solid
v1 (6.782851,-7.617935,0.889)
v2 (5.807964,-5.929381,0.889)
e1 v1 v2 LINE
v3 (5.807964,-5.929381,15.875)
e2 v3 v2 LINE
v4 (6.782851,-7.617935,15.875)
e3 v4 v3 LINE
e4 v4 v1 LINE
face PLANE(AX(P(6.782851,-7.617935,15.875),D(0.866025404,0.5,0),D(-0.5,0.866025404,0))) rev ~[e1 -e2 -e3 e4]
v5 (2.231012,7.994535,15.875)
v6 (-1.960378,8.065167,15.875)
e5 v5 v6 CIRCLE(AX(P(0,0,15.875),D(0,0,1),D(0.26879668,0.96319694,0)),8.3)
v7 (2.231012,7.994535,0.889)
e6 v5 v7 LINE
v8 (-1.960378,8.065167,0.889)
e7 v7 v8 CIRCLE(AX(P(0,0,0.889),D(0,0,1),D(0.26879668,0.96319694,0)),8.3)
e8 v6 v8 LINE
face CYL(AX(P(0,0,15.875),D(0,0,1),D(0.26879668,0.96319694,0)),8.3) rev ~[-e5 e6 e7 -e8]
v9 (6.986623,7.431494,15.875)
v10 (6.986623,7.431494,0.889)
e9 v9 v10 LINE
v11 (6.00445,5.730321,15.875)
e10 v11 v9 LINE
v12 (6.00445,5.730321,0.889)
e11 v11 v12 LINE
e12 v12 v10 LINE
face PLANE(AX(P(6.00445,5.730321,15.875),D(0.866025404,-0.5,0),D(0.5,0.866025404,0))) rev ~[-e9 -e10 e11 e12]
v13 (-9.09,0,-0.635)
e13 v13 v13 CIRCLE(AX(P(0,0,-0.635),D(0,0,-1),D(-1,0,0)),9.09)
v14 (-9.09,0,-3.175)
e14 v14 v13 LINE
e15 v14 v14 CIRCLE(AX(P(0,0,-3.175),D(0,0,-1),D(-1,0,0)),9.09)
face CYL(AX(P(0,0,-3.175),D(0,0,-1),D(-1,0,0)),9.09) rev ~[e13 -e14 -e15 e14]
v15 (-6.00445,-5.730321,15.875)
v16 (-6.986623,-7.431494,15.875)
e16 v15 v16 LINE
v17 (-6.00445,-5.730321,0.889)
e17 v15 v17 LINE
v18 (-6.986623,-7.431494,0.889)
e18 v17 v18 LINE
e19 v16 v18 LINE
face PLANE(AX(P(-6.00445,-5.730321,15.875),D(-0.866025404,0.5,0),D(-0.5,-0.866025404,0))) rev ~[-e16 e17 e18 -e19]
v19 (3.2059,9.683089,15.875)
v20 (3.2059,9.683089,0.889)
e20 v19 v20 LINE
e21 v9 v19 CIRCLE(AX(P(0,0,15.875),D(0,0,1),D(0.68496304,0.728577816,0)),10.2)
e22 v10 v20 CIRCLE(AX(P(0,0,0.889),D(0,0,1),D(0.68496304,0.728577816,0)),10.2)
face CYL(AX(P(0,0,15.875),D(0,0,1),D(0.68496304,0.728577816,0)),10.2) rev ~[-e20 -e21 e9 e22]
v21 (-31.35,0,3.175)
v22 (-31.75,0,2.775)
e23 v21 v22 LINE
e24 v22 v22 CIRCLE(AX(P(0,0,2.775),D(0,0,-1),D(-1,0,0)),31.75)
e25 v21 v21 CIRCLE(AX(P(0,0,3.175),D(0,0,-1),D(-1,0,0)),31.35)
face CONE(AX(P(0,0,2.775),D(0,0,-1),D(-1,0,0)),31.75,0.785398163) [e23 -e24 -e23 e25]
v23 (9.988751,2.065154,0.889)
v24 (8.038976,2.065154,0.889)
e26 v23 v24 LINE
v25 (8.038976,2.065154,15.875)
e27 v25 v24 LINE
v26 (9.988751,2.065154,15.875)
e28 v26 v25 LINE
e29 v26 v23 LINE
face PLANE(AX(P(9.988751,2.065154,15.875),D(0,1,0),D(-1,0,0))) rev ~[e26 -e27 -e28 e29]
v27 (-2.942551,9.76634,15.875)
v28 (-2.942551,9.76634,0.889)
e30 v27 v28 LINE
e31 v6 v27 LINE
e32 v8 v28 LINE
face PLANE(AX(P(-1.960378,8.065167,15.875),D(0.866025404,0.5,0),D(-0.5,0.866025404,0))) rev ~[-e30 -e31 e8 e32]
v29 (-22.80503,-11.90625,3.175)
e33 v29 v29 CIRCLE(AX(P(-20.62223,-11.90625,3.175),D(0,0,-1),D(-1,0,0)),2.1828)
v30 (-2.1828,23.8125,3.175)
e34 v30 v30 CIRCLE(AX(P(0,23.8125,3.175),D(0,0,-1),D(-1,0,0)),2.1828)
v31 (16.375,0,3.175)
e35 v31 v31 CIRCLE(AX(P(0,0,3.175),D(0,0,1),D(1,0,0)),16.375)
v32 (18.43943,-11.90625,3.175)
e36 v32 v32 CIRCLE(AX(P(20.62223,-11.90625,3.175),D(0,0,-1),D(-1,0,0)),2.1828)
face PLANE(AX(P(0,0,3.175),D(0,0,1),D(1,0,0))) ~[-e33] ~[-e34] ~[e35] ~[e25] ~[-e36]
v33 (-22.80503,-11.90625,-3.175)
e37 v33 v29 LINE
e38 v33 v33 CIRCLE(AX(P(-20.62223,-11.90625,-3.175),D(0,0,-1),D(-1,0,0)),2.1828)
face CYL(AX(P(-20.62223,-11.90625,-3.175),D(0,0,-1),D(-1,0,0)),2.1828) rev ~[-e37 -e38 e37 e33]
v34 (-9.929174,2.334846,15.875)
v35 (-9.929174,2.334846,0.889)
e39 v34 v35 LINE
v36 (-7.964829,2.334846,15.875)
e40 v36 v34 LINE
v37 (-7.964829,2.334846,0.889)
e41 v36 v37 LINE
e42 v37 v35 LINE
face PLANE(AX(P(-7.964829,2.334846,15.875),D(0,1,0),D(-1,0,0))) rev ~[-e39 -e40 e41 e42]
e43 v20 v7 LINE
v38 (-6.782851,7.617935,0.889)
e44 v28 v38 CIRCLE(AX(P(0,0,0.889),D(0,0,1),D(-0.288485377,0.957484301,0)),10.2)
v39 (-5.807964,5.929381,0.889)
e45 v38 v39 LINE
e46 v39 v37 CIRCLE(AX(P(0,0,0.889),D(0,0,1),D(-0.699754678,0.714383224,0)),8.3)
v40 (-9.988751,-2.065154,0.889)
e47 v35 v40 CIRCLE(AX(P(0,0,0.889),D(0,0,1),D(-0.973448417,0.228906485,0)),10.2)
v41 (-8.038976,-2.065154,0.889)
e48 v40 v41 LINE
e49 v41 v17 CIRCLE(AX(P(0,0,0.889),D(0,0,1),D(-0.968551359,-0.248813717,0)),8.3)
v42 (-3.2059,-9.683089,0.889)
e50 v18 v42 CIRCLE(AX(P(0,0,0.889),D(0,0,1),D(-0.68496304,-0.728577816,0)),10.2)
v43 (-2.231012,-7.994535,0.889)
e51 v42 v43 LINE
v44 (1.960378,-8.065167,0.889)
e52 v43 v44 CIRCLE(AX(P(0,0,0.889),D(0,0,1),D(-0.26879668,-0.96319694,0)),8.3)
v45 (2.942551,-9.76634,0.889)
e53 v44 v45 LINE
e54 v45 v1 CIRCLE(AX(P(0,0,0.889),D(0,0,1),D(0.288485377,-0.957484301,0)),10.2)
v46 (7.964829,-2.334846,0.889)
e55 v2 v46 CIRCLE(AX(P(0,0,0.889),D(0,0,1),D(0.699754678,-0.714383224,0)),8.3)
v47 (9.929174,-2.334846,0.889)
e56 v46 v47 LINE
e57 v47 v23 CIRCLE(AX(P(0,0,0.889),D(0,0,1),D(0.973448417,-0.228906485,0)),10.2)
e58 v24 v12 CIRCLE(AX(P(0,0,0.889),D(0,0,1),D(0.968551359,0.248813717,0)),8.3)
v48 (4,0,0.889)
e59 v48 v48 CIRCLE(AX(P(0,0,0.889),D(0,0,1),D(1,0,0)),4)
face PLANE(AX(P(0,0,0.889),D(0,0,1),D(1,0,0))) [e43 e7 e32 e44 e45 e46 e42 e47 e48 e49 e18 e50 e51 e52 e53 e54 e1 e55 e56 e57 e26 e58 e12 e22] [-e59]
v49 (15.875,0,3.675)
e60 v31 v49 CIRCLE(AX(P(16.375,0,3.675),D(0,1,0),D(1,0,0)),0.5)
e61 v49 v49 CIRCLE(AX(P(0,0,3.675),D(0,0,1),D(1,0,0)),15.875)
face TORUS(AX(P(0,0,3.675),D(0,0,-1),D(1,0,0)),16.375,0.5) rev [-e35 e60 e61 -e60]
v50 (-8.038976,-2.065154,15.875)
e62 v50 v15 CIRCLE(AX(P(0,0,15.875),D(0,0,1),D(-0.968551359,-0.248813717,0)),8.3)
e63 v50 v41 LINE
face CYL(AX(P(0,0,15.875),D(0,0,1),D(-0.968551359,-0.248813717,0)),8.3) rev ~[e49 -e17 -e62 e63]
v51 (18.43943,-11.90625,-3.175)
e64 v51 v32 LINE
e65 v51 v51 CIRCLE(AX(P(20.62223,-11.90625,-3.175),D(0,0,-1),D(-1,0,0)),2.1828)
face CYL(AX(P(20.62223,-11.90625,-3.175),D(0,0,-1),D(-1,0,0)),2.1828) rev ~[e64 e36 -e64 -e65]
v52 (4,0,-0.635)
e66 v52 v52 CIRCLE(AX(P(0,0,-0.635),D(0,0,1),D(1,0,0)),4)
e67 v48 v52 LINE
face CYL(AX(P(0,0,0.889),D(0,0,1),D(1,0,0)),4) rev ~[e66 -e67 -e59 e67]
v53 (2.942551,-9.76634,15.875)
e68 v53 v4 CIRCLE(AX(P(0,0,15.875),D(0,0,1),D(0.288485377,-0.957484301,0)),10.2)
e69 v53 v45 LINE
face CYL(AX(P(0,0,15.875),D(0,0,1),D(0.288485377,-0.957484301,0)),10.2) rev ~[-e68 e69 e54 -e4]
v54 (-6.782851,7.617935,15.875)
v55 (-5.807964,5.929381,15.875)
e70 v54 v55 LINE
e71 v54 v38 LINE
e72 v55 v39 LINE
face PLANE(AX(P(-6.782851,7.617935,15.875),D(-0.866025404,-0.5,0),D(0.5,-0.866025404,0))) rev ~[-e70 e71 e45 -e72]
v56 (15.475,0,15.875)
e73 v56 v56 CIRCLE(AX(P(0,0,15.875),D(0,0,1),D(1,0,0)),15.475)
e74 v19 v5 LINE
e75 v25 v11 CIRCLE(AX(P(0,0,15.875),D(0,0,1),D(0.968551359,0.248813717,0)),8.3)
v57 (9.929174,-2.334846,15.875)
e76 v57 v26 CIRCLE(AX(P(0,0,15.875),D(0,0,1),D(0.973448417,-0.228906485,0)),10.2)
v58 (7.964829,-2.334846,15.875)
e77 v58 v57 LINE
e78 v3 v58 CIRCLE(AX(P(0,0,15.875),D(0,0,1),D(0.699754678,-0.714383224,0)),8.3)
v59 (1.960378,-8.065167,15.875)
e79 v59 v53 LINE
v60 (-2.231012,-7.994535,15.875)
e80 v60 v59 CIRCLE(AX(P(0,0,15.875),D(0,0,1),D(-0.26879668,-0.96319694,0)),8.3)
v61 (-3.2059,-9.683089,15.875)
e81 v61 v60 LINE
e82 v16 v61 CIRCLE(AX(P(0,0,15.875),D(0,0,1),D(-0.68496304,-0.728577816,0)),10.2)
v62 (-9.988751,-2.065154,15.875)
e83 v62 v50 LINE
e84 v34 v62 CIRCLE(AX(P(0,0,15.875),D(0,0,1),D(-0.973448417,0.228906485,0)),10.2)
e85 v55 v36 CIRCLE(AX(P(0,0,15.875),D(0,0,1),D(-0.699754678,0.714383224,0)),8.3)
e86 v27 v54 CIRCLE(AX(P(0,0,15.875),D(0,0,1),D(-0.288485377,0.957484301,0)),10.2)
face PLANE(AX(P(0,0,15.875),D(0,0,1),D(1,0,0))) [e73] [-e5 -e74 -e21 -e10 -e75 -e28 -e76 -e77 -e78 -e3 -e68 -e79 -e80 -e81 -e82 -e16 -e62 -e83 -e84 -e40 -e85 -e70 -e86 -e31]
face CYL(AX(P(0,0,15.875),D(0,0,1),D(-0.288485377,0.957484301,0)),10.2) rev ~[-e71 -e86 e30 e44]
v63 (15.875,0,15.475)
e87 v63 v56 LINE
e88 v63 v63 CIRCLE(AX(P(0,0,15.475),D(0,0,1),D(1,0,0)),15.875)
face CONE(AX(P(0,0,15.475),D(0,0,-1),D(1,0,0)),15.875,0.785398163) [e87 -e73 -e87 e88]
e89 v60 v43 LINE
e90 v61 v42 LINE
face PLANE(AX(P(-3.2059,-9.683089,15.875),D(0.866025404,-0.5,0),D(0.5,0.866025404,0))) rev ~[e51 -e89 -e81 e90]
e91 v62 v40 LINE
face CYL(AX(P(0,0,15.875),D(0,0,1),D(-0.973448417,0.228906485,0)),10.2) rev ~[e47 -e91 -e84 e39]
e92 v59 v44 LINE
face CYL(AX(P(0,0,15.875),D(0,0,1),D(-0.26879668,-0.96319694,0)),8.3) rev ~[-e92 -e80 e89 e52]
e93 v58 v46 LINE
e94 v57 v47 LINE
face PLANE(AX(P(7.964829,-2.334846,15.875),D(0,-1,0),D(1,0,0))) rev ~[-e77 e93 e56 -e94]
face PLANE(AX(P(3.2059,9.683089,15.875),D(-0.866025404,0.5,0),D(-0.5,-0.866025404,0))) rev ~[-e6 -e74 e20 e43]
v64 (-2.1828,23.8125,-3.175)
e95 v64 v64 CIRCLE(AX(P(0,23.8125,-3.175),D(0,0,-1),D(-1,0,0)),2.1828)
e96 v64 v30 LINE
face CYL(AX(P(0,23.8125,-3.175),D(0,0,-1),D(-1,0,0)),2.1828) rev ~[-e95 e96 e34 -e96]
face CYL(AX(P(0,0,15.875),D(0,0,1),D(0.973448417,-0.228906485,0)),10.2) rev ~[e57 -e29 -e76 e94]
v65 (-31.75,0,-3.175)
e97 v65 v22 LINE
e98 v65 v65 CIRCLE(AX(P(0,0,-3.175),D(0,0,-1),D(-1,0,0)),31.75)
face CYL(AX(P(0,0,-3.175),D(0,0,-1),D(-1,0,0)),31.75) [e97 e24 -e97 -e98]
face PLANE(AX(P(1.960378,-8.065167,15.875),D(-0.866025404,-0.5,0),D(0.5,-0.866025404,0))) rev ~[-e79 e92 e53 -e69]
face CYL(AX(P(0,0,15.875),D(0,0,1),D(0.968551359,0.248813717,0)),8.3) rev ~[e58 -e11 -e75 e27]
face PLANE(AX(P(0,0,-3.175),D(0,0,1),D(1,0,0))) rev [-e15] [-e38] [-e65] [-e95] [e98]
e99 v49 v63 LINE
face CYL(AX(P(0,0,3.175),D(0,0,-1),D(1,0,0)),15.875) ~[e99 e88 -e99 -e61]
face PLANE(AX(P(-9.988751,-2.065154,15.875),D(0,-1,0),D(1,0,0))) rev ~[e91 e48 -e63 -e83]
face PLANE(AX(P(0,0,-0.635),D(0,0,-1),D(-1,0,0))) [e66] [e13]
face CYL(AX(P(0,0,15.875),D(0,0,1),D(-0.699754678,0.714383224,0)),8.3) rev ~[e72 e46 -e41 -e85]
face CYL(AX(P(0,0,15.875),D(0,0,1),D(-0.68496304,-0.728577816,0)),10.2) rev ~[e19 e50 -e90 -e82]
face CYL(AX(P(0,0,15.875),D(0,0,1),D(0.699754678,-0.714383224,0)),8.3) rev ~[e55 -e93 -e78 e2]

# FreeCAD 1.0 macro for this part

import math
import FreeCAD as App
import Part
import Sketcher
Q = App.Units.Quantity


def edges_at(feature, points):
    """Names of the edges that pass closest to the given points."""
    edges = feature.Shape.Edges
    near = lambda p: min(range(len(edges)), key=lambda i: edges[i].distToShape(Part.Vertex(*p))[0])
    return sorted({f"Edge{near(p) + 1}" for p in points})


def add_polygon(sketch, points):
    """Adds a closed chain of lines whose ends are joined by coincident constraints."""
    first, n = sketch.GeometryCount, len(points)
    for a, b in zip(points, points[1:] + points[:1]):
        sketch.addGeometry(Part.LineSegment(App.Vector(*a, 0), App.Vector(*b, 0)), False)
    for i in range(n):
        sketch.addConstraint(Sketcher.Constraint("Coincident", first + i, 2, first + (i + 1) % n, 1))

doc = App.newDocument("Part")
params = doc.addObject("Spreadsheet::Sheet", "Params")
for row, (alias, value) in enumerate([
    ("sketch1_width", "38.1 mm"),
    ("sketch1_height", "6.35 mm"),
    ("revolution_angle", "360 deg"),
    ("sketch2_diameter", "31.75 mm"),
    ("pad1_length", "12.7 mm"),
    ("sketch3_radius", "10 mm"),
    ("sketch3_radius2", "8.1 mm"),
    ("pocket1_length", "14.986 mm"),
    ("sketch4_diameter", "8 mm"),
    ("pocket2_length", "10 mm"),
    ("fillet_radius", "0.5 mm"),
    ("sketch5_diameter", "76.2 mm"),
    ("sketch5_diameter2", "63.5 mm"),
    ("pocket3_length", "10 mm"),
    ("chamfer_size", "0.4 mm"),
    ("sketch6_diameter", "18.18 mm"),
    ("pocket4_length", "2.54 mm"),
    ("sketch7_radius", "10 mm"),
    ("sketch7_radius2", "8.3 mm"),
    ("sketch7_radius3", "10.2 mm"),
    ("sketch7_radius4", "8.1 mm"),
    ("pocket5_length", "14.986 mm"),
], start=1):
    params.set(f"A{row}", alias)
    params.set(f"B{row}", "=" + value)
    params.setAlias(f"B{row}", alias)

body = doc.addObject("PartDesign::Body", "Body")

sketch1 = doc.addObject("Sketcher::SketchObject", "Sketch")
body.addObject(sketch1)
sketch1.AttachmentSupport = (doc.XZ_Plane, [""])
sketch1.MapMode = "FlatFace"
add_polygon(sketch1, [(0, -3), (0, 3), (38, 3), (38, -3)])
sketch1.addConstraint([
    Sketcher.Constraint("Vertical", 0),
    Sketcher.Constraint("Horizontal", 1),
    Sketcher.Constraint("Vertical", 2),
    Sketcher.Constraint("Horizontal", 3),
    Sketcher.Constraint("Symmetric", 0, 2, 3, 2, -1, 1),
    Sketcher.Constraint("DistanceX", 1, 1, 1, 2, Q("38.1 mm")),
    Sketcher.Constraint("DistanceY", 0, 1, 0, 2, Q("6.35 mm")),
])
sketch1.setExpression("Constraints[9]", "Params.sketch1_width")
sketch1.setExpression("Constraints[10]", "Params.sketch1_height")
revolution = doc.addObject("PartDesign::Revolution", "Revolution")
body.addObject(revolution)
revolution.Profile = sketch1
revolution.ReferenceAxis = (sketch1, ["V_Axis"])
revolution.setExpression("Angle", "Params.revolution_angle")

sketch2 = doc.addObject("Sketcher::SketchObject", "Sketch001")
body.addObject(sketch2)
sketch2.AttachmentSupport = (doc.XY_Plane, [""])
sketch2.MapMode = "FlatFace"
sketch2.AttachmentOffset = App.Placement(App.Vector(0, 0, 3.175), App.Rotation())
sketch2.addGeometry(Part.Circle(App.Vector(0, 0, 0), App.Vector(0, 0, 1), 16), False)
sketch2.addConstraint([
    Sketcher.Constraint("Coincident", 0, 3, -1, 1),
    Sketcher.Constraint("Diameter", 0, Q("31.75 mm")),
])
sketch2.setExpression("Constraints[1]", "Params.sketch2_diameter")
pad1 = doc.addObject("PartDesign::Pad", "Pad")
body.addObject(pad1)
pad1.Profile = sketch2
pad1.setExpression("Length", "Params.pad1_length")

sketch3 = doc.addObject("Sketcher::SketchObject", "Sketch002")
body.addObject(sketch3)
sketch3.AttachmentSupport = (doc.XY_Plane, [""])
sketch3.MapMode = "FlatFace"
sketch3.AttachmentOffset = App.Placement(App.Vector(0, 0, 15.875), App.Rotation())
sketch3.addGeometry([
    Part.LineSegment(App.Vector(-7.8, 2.1, 0), App.Vector(-9.8, 2.1, 0)),
    Part.ArcOfCircle(Part.Circle(App.Vector(0, 0, 0), App.Vector(0, 0, 1), 10), math.radians(168), math.radians(191)),
    Part.LineSegment(App.Vector(-9.8, -1.9, 0), App.Vector(-7.9, -1.9, 0)),
    Part.ArcOfCircle(Part.Circle(App.Vector(0, 0, 0), App.Vector(0, 0, 1), 8.1), math.radians(-167), math.radians(-135)),
    Part.LineSegment(App.Vector(-5.8, -5.7, 0), App.Vector(-6.7, -7.4, 0)),
    Part.ArcOfCircle(Part.Circle(App.Vector(0, 0, 0), App.Vector(0, 0, 1), 10), math.radians(-132), math.radians(-109)),
    Part.LineSegment(App.Vector(-3.3, -9.4, 0), App.Vector(-2.3, -7.8, 0)),
    Part.ArcOfCircle(Part.Circle(App.Vector(0, 0, 0), App.Vector(0, 0, 1), 8.1), math.radians(-107), math.radians(-75)),
    Part.LineSegment(App.Vector(2.1, -7.8, 0), App.Vector(3, -9.5, 0)),
    Part.ArcOfCircle(Part.Circle(App.Vector(0, 0, 0), App.Vector(0, 0, 1), 10), math.radians(-72), math.radians(-49)),
    Part.LineSegment(App.Vector(6.5, -7.6, 0), App.Vector(5.6, -5.9, 0)),
    Part.ArcOfCircle(Part.Circle(App.Vector(0, 0, 0), App.Vector(0, 0, 1), 8.1), math.radians(-47), math.radians(-15)),
    Part.LineSegment(App.Vector(7.8, -2.1, 0), App.Vector(9.8, -2.1, 0)),
    Part.ArcOfCircle(Part.Circle(App.Vector(0, 0, 0), App.Vector(0, 0, 1), 10), math.radians(-12), math.radians(11)),
    Part.LineSegment(App.Vector(9.8, 1.9, 0), App.Vector(7.9, 1.9, 0)),
    Part.ArcOfCircle(Part.Circle(App.Vector(0, 0, 0), App.Vector(0, 0, 1), 8.1), math.radians(13), math.radians(45)),
    Part.LineSegment(App.Vector(5.8, 5.7, 0), App.Vector(6.7, 7.4, 0)),
    Part.ArcOfCircle(Part.Circle(App.Vector(0, 0, 0), App.Vector(0, 0, 1), 10), math.radians(48), math.radians(71)),
    Part.LineSegment(App.Vector(3.3, 9.4, 0), App.Vector(2.3, 7.8, 0)),
    Part.ArcOfCircle(Part.Circle(App.Vector(0, 0, 0), App.Vector(0, 0, 1), 8.1), math.radians(73), math.radians(105)),
    Part.LineSegment(App.Vector(-2.1, 7.8, 0), App.Vector(-3, 9.5, 0)),
    Part.ArcOfCircle(Part.Circle(App.Vector(0, 0, 0), App.Vector(0, 0, 1), 10), math.radians(108), math.radians(131)),
    Part.LineSegment(App.Vector(-6.5, 7.6, 0), App.Vector(-5.6, 5.9, 0)),
    Part.ArcOfCircle(Part.Circle(App.Vector(0, 0, 0), App.Vector(0, 0, 1), 8.1), math.radians(133), math.radians(165)),
], False)
sketch3.addConstraint([
    Sketcher.Constraint("Coincident", 0, 2, 1, 1),
    Sketcher.Constraint("Coincident", 1, 2, 2, 1),
    Sketcher.Constraint("Coincident", 2, 2, 3, 1),
    Sketcher.Constraint("Coincident", 3, 2, 4, 1),
    Sketcher.Constraint("Coincident", 4, 2, 5, 1),
    Sketcher.Constraint("Coincident", 5, 2, 6, 1),
    Sketcher.Constraint("Coincident", 6, 2, 7, 1),
    Sketcher.Constraint("Coincident", 7, 2, 8, 1),
    Sketcher.Constraint("Coincident", 8, 2, 9, 1),
    Sketcher.Constraint("Coincident", 9, 2, 10, 1),
    Sketcher.Constraint("Coincident", 10, 2, 11, 1),
    Sketcher.Constraint("Coincident", 11, 2, 12, 1),
    Sketcher.Constraint("Coincident", 12, 2, 13, 1),
    Sketcher.Constraint("Coincident", 13, 2, 14, 1),
    Sketcher.Constraint("Coincident", 14, 2, 15, 1),
    Sketcher.Constraint("Coincident", 15, 2, 16, 1),
    Sketcher.Constraint("Coincident", 16, 2, 17, 1),
    Sketcher.Constraint("Coincident", 17, 2, 18, 1),
    Sketcher.Constraint("Coincident", 18, 2, 19, 1),
    Sketcher.Constraint("Coincident", 19, 2, 20, 1),
    Sketcher.Constraint("Coincident", 20, 2, 21, 1),
    Sketcher.Constraint("Coincident", 21, 2, 22, 1),
    Sketcher.Constraint("Coincident", 22, 2, 23, 1),
    Sketcher.Constraint("Coincident", 23, 2, 0, 1),
    Sketcher.Constraint("Horizontal", 0),
    Sketcher.Constraint("Horizontal", 2),
    Sketcher.Constraint("Horizontal", 12),
    Sketcher.Constraint("Horizontal", 14),
    Sketcher.Constraint("Coincident", 1, 3, -1, 1),
    Sketcher.Constraint("Coincident", 3, 3, -1, 1),
    Sketcher.Constraint("Coincident", 5, 3, -1, 1),
    Sketcher.Constraint("Coincident", 7, 3, -1, 1),
    Sketcher.Constraint("Coincident", 9, 3, -1, 1),
    Sketcher.Constraint("Coincident", 11, 3, -1, 1),
    Sketcher.Constraint("Coincident", 13, 3, -1, 1),
    Sketcher.Constraint("Coincident", 15, 3, -1, 1),
    Sketcher.Constraint("Coincident", 17, 3, -1, 1),
    Sketcher.Constraint("Coincident", 19, 3, -1, 1),
    Sketcher.Constraint("Coincident", 21, 3, -1, 1),
    Sketcher.Constraint("Coincident", 23, 3, -1, 1),
    Sketcher.Constraint("Equal", 1, 5),
    Sketcher.Constraint("Equal", 3, 7),
    Sketcher.Constraint("Equal", 5, 9),
    Sketcher.Constraint("Equal", 7, 11),
    Sketcher.Constraint("Equal", 9, 13),
    Sketcher.Constraint("Equal", 11, 15),
    Sketcher.Constraint("Equal", 13, 17),
    Sketcher.Constraint("Equal", 15, 19),
    Sketcher.Constraint("Equal", 17, 21),
    Sketcher.Constraint("Equal", 19, 23),
    Sketcher.Constraint("Parallel", 4, 6),
    Sketcher.Constraint("Parallel", 8, 10),
    Sketcher.Constraint("Parallel", 6, 16),
    Sketcher.Constraint("Parallel", 16, 18),
    Sketcher.Constraint("Parallel", 10, 20),
    Sketcher.Constraint("Parallel", 20, 22),
    Sketcher.Constraint("Equal", 0, 12),
    Sketcher.Constraint("Equal", 2, 14),
    Sketcher.Constraint("Equal", 4, 8),
    Sketcher.Constraint("Equal", 6, 10),
    Sketcher.Constraint("Equal", 8, 16),
    Sketcher.Constraint("Equal", 10, 18),
    Sketcher.Constraint("Equal", 16, 20),
    Sketcher.Constraint("Equal", 18, 22),
    Sketcher.Constraint("Radius", 1, Q("10 mm")),
    Sketcher.Constraint("Radius", 3, Q("8.1 mm")),
    Sketcher.Constraint("Angle", 4, Q("-120 deg")),
    Sketcher.Constraint("Angle", 8, Q("-60 deg")),
    Sketcher.Constraint("DistanceY", 1, 2, 0, 2, Q("4 mm")),
    Sketcher.Constraint("DistanceX", 0, 2, 0, 1, Q("1.955859 mm")),
    Sketcher.Constraint("DistanceX", -1, 1, 8, 2, Q("3.035901 mm")),
    Sketcher.Constraint("DistanceX", 5, 2, -1, 1, Q("3.29699 mm")),
])
sketch3.setExpression("Constraints[64]", "Params.sketch3_radius")
sketch3.setExpression("Constraints[65]", "Params.sketch3_radius2")
pocket1 = doc.addObject("PartDesign::Pocket", "Pocket")
body.addObject(pocket1)
pocket1.Profile = sketch3
pocket1.setExpression("Length", "Params.pocket1_length")

sketch4 = doc.addObject("Sketcher::SketchObject", "Sketch003")
body.addObject(sketch4)
sketch4.AttachmentSupport = (doc.XY_Plane, [""])
sketch4.MapMode = "FlatFace"
sketch4.AttachmentOffset = App.Placement(App.Vector(0, 0, 0.889), App.Rotation())
sketch4.addGeometry(Part.Circle(App.Vector(0, 0, 0), App.Vector(0, 0, 1), 4), False)
sketch4.addConstraint([
    Sketcher.Constraint("Coincident", 0, 3, -1, 1),
    Sketcher.Constraint("Diameter", 0, Q("8 mm")),
])
sketch4.setExpression("Constraints[1]", "Params.sketch4_diameter")
pocket2 = doc.addObject("PartDesign::Pocket", "Pocket001")
body.addObject(pocket2)
pocket2.Profile = sketch4
pocket2.setExpression("Length", "Params.pocket2_length")
doc.recompute()

fillet = doc.addObject("PartDesign::Fillet", "Fillet")
body.addObject(fillet)
fillet.Base = (pocket2, edges_at(pocket2, [(-15.875, 0, 3.175)]))
fillet.setExpression("Radius", "Params.fillet_radius")

sketch5 = doc.addObject("Sketcher::SketchObject", "Sketch004")
body.addObject(sketch5)
sketch5.AttachmentSupport = (doc.XY_Plane, [""])
sketch5.MapMode = "FlatFace"
sketch5.AttachmentOffset = App.Placement(App.Vector(0, 0, -3.175), App.Rotation())
sketch5.addGeometry([
    Part.Circle(App.Vector(0, 0, 0), App.Vector(0, 0, 1), 38.1),
    Part.Circle(App.Vector(0, 0, 0), App.Vector(0, 0, 1), 31.8),
    Part.Circle(App.Vector(0, 23.8, 0), App.Vector(0, 0, 1), 2.2),
    Part.Circle(App.Vector(20.6, -11.9, 0), App.Vector(0, 0, 1), 2.2),
    Part.Circle(App.Vector(-20.6, -11.9, 0), App.Vector(0, 0, 1), 2.2),
], False)
sketch5.addConstraint([
    Sketcher.Constraint("Coincident", 0, 3, -1, 1),
    Sketcher.Constraint("Coincident", 1, 3, -1, 1),
    Sketcher.Constraint("Equal", 2, 3),
    Sketcher.Constraint("Equal", 3, 4),
    Sketcher.Constraint("Symmetric", 3, 3, 4, 3, -2),
    Sketcher.Constraint("PointOnObject", 2, 3, -2),
    Sketcher.Constraint("Diameter", 0, Q("76.2 mm")),
    Sketcher.Constraint("Diameter", 1, Q("63.5 mm")),
    Sketcher.Constraint("Diameter", 2, Q("4.3656 mm")),
    Sketcher.Constraint("DistanceY", -1, 1, 2, 3, Q("23.8125 mm")),
    Sketcher.Constraint("DistanceX", -1, 1, 3, 3, Q("20.62223 mm")),
    Sketcher.Constraint("DistanceY", 3, 3, -1, 1, Q("11.90625 mm")),
])
sketch5.setExpression("Constraints[6]", "Params.sketch5_diameter")
sketch5.setExpression("Constraints[7]", "Params.sketch5_diameter2")
pocket3 = doc.addObject("PartDesign::Pocket", "Pocket002")
body.addObject(pocket3)
pocket3.Profile = sketch5
pocket3.setExpression("Length", "Params.pocket3_length")
pocket3.Reversed = True
doc.recompute()

chamfer = doc.addObject("PartDesign::Chamfer", "Chamfer")
body.addObject(chamfer)
chamfer.Base = (pocket3, edges_at(pocket3, [(31.75, 0, 3.175), (-15.875, 0, 15.875)]))
chamfer.setExpression("Size", "Params.chamfer_size")

sketch6 = doc.addObject("Sketcher::SketchObject", "Sketch005")
body.addObject(sketch6)
sketch6.AttachmentSupport = (doc.XY_Plane, [""])
sketch6.MapMode = "FlatFace"
sketch6.AttachmentOffset = App.Placement(App.Vector(0, 0, -3.175), App.Rotation())
sketch6.addGeometry(Part.Circle(App.Vector(0, 0, 0), App.Vector(0, 0, 1), 9), False)
sketch6.addConstraint([
    Sketcher.Constraint("Coincident", 0, 3, -1, 1),
    Sketcher.Constraint("Diameter", 0, Q("18.18 mm")),
])
sketch6.setExpression("Constraints[1]", "Params.sketch6_diameter")
pocket4 = doc.addObject("PartDesign::Pocket", "Pocket003")
body.addObject(pocket4)
pocket4.Profile = sketch6
pocket4.setExpression("Length", "Params.pocket4_length")
pocket4.Reversed = True

sketch7 = doc.addObject("Sketcher::SketchObject", "Sketch006")
body.addObject(sketch7)
sketch7.AttachmentSupport = (doc.XY_Plane, [""])
sketch7.MapMode = "FlatFace"
sketch7.AttachmentOffset = App.Placement(App.Vector(0, 0, 15.875), App.Rotation())
sketch7.addGeometry([
    Part.LineSegment(App.Vector(-6.8, 7.6, 0), App.Vector(-5.8, 5.9, 0)),
    Part.ArcOfCircle(Part.Circle(App.Vector(0, 0, 0), App.Vector(0, 0, 1), 8.3), math.radians(134), math.radians(164)),
    Part.LineSegment(App.Vector(-8, 2.3, 0), App.Vector(-9.9, 2.3, 0)),
    Part.ArcOfCircle(Part.Circle(App.Vector(0, 0, 0), App.Vector(0, 0, 1), 10.2), math.radians(167), math.radians(192)),
    Part.LineSegment(App.Vector(-10, -2.1, 0), App.Vector(-8, -2.1, 0)),
    Part.ArcOfCircle(Part.Circle(App.Vector(0, 0, 0), App.Vector(0, 0, 1), 8.3), math.radians(-166), math.radians(-136)),
    Part.LineSegment(App.Vector(-6, -5.7, 0), App.Vector(-7, -7.4, 0)),
    Part.ArcOfCircle(Part.Circle(App.Vector(0, 0, 0), App.Vector(0, 0, 1), 10.2), math.radians(-133), math.radians(-108)),
    Part.LineSegment(App.Vector(-3.2, -9.7, 0), App.Vector(-2.2, -8, 0)),
    Part.ArcOfCircle(Part.Circle(App.Vector(0, 0, 0), App.Vector(0, 0, 1), 8.3), math.radians(-106), math.radians(-76)),
    Part.LineSegment(App.Vector(2, -8.1, 0), App.Vector(2.9, -9.8, 0)),
    Part.ArcOfCircle(Part.Circle(App.Vector(0, 0, 0), App.Vector(0, 0, 1), 10.2), math.radians(-73), math.radians(-48)),
    Part.LineSegment(App.Vector(6.8, -7.6, 0), App.Vector(5.8, -5.9, 0)),
    Part.ArcOfCircle(Part.Circle(App.Vector(0, 0, 0), App.Vector(0, 0, 1), 8.3), math.radians(-46), math.radians(-16)),
    Part.LineSegment(App.Vector(8, -2.3, 0), App.Vector(9.9, -2.3, 0)),
    Part.ArcOfCircle(Part.Circle(App.Vector(0, 0, 0), App.Vector(0, 0, 1), 10.2), math.radians(-13), math.radians(12)),
    Part.LineSegment(App.Vector(10, 2.1, 0), App.Vector(8, 2.1, 0)),
    Part.ArcOfCircle(Part.Circle(App.Vector(0, 0, 0), App.Vector(0, 0, 1), 8.3), math.radians(14), math.radians(44)),
    Part.LineSegment(App.Vector(6, 5.7, 0), App.Vector(7, 7.4, 0)),
    Part.ArcOfCircle(Part.Circle(App.Vector(0, 0, 0), App.Vector(0, 0, 1), 10.2), math.radians(47), math.radians(72)),
    Part.LineSegment(App.Vector(3.2, 9.7, 0), App.Vector(2.2, 8, 0)),
    Part.ArcOfCircle(Part.Circle(App.Vector(0, 0, 0), App.Vector(0, 0, 1), 8.3), math.radians(74), math.radians(104)),
    Part.LineSegment(App.Vector(-2, 8.1, 0), App.Vector(-2.9, 9.8, 0)),
    Part.ArcOfCircle(Part.Circle(App.Vector(0, 0, 0), App.Vector(0, 0, 1), 10.2), math.radians(107), math.radians(132)),
    Part.ArcOfCircle(Part.Circle(App.Vector(0, 0, 0), App.Vector(0, 0, 1), 10), math.radians(168), math.radians(191)),
    Part.LineSegment(App.Vector(-9.8, 2.1, 0), App.Vector(-7.8, 2.1, 0)),
    Part.ArcOfCircle(Part.Circle(App.Vector(0, 0, 0), App.Vector(0, 0, 1), 8.1), math.radians(133), math.radians(165)),
    Part.LineSegment(App.Vector(-5.6, 5.9, 0), App.Vector(-6.5, 7.6, 0)),
    Part.ArcOfCircle(Part.Circle(App.Vector(0, 0, 0), App.Vector(0, 0, 1), 10), math.radians(108), math.radians(131)),
    Part.LineSegment(App.Vector(-3, 9.5, 0), App.Vector(-2.1, 7.8, 0)),
    Part.ArcOfCircle(Part.Circle(App.Vector(0, 0, 0), App.Vector(0, 0, 1), 8.1), math.radians(73), math.radians(105)),
    Part.LineSegment(App.Vector(2.3, 7.8, 0), App.Vector(3.3, 9.4, 0)),
    Part.ArcOfCircle(Part.Circle(App.Vector(0, 0, 0), App.Vector(0, 0, 1), 10), math.radians(48), math.radians(71)),
    Part.LineSegment(App.Vector(6.7, 7.4, 0), App.Vector(5.8, 5.7, 0)),
    Part.ArcOfCircle(Part.Circle(App.Vector(0, 0, 0), App.Vector(0, 0, 1), 8.1), math.radians(13), math.radians(45)),
    Part.LineSegment(App.Vector(7.9, 1.9, 0), App.Vector(9.8, 1.9, 0)),
    Part.ArcOfCircle(Part.Circle(App.Vector(0, 0, 0), App.Vector(0, 0, 1), 10), math.radians(-12), math.radians(11)),
    Part.LineSegment(App.Vector(9.8, -2.1, 0), App.Vector(7.8, -2.1, 0)),
    Part.ArcOfCircle(Part.Circle(App.Vector(0, 0, 0), App.Vector(0, 0, 1), 8.1), math.radians(-47), math.radians(-15)),
    Part.LineSegment(App.Vector(5.6, -5.9, 0), App.Vector(6.5, -7.6, 0)),
    Part.ArcOfCircle(Part.Circle(App.Vector(0, 0, 0), App.Vector(0, 0, 1), 10), math.radians(-72), math.radians(-49)),
    Part.LineSegment(App.Vector(3, -9.5, 0), App.Vector(2.1, -7.8, 0)),
    Part.ArcOfCircle(Part.Circle(App.Vector(0, 0, 0), App.Vector(0, 0, 1), 8.1), math.radians(-107), math.radians(-75)),
    Part.LineSegment(App.Vector(-2.3, -7.8, 0), App.Vector(-3.3, -9.4, 0)),
    Part.ArcOfCircle(Part.Circle(App.Vector(0, 0, 0), App.Vector(0, 0, 1), 10), math.radians(-132), math.radians(-109)),
    Part.LineSegment(App.Vector(-6.7, -7.4, 0), App.Vector(-5.8, -5.7, 0)),
    Part.ArcOfCircle(Part.Circle(App.Vector(0, 0, 0), App.Vector(0, 0, 1), 8.1), math.radians(-167), math.radians(-135)),
    Part.LineSegment(App.Vector(-7.9, -1.9, 0), App.Vector(-9.8, -1.9, 0)),
], False)
sketch7.addConstraint([
    Sketcher.Constraint("Coincident", 0, 2, 1, 1),
    Sketcher.Constraint("Coincident", 1, 2, 2, 1),
    Sketcher.Constraint("Coincident", 2, 2, 3, 1),
    Sketcher.Constraint("Coincident", 3, 2, 4, 1),
    Sketcher.Constraint("Coincident", 4, 2, 5, 1),
    Sketcher.Constraint("Coincident", 5, 2, 6, 1),
    Sketcher.Constraint("Coincident", 6, 2, 7, 1),
    Sketcher.Constraint("Coincident", 7, 2, 8, 1),
    Sketcher.Constraint("Coincident", 8, 2, 9, 1),
    Sketcher.Constraint("Coincident", 9, 2, 10, 1),
    Sketcher.Constraint("Coincident", 10, 2, 11, 1),
    Sketcher.Constraint("Coincident", 11, 2, 12, 1),
    Sketcher.Constraint("Coincident", 12, 2, 13, 1),
    Sketcher.Constraint("Coincident", 13, 2, 14, 1),
    Sketcher.Constraint("Coincident", 14, 2, 15, 1),
    Sketcher.Constraint("Coincident", 15, 2, 16, 1),
    Sketcher.Constraint("Coincident", 16, 2, 17, 1),
    Sketcher.Constraint("Coincident", 17, 2, 18, 1),
    Sketcher.Constraint("Coincident", 18, 2, 19, 1),
    Sketcher.Constraint("Coincident", 19, 2, 20, 1),
    Sketcher.Constraint("Coincident", 20, 2, 21, 1),
    Sketcher.Constraint("Coincident", 21, 2, 22, 1),
    Sketcher.Constraint("Coincident", 22, 2, 23, 1),
    Sketcher.Constraint("Coincident", 23, 2, 0, 1),
    Sketcher.Constraint("Coincident", 24, 1, 25, 1),
    Sketcher.Constraint("Coincident", 25, 2, 26, 2),
    Sketcher.Constraint("Coincident", 26, 1, 27, 1),
    Sketcher.Constraint("Coincident", 27, 2, 28, 2),
    Sketcher.Constraint("Coincident", 28, 1, 29, 1),
    Sketcher.Constraint("Coincident", 29, 2, 30, 2),
    Sketcher.Constraint("Coincident", 30, 1, 31, 1),
    Sketcher.Constraint("Coincident", 31, 2, 32, 2),
    Sketcher.Constraint("Coincident", 32, 1, 33, 1),
    Sketcher.Constraint("Coincident", 33, 2, 34, 2),
    Sketcher.Constraint("Coincident", 34, 1, 35, 1),
    Sketcher.Constraint("Coincident", 35, 2, 36, 2),
    Sketcher.Constraint("Coincident", 36, 1, 37, 1),
    Sketcher.Constraint("Coincident", 37, 2, 38, 2),
    Sketcher.Constraint("Coincident", 38, 1, 39, 1),
    Sketcher.Constraint("Coincident", 39, 2, 40, 2),
    Sketcher.Constraint("Coincident", 40, 1, 41, 1),
    Sketcher.Constraint("Coincident", 41, 2, 42, 2),
    Sketcher.Constraint("Coincident", 42, 1, 43, 1),
    Sketcher.Constraint("Coincident", 43, 2, 44, 2),
    Sketcher.Constraint("Coincident", 44, 1, 45, 1),
    Sketcher.Constraint("Coincident", 45, 2, 46, 2),
    Sketcher.Constraint("Coincident", 46, 1, 47, 1),
    Sketcher.Constraint("Coincident", 47, 2, 24, 2),
    Sketcher.Constraint("Horizontal", 2),
    Sketcher.Constraint("Horizontal", 4),
    Sketcher.Constraint("Horizontal", 14),
    Sketcher.Constraint("Horizontal", 16),
    Sketcher.Constraint("Horizontal", 25),
    Sketcher.Constraint("Horizontal", 35),
    Sketcher.Constraint("Horizontal", 37),
    Sketcher.Constraint("Horizontal", 47),
    Sketcher.Constraint("Coincident", 1, 3, -1, 1),
    Sketcher.Constraint("Coincident", 3, 3, -1, 1),
    Sketcher.Constraint("Coincident", 5, 3, -1, 1),
    Sketcher.Constraint("Coincident", 7, 3, -1, 1),
    Sketcher.Constraint("Coincident", 9, 3, -1, 1),
    Sketcher.Constraint("Coincident", 11, 3, -1, 1),
    Sketcher.Constraint("Coincident", 13, 3, -1, 1),
    Sketcher.Constraint("Coincident", 15, 3, -1, 1),
    Sketcher.Constraint("Coincident", 17, 3, -1, 1),
    Sketcher.Constraint("Coincident", 19, 3, -1, 1),
    Sketcher.Constraint("Coincident", 21, 3, -1, 1),
    Sketcher.Constraint("Coincident", 23, 3, -1, 1),
    Sketcher.Constraint("Coincident", 24, 3, -1, 1),
    Sketcher.Constraint("Coincident", 26, 3, -1, 1),
    Sketcher.Constraint("Coincident", 28, 3, -1, 1),
    Sketcher.Constraint("Coincident", 30, 3, -1, 1),
    Sketcher.Constraint("Coincident", 32, 3, -1, 1),
    Sketcher.Constraint("Coincident", 34, 3, -1, 1),
    Sketcher.Constraint("Coincident", 36, 3, -1, 1),
    Sketcher.Constraint("Coincident", 38, 3, -1, 1),
    Sketcher.Constraint("Coincident", 40, 3, -1, 1),
    Sketcher.Constraint("Coincident", 42, 3, -1, 1),
    Sketcher.Constraint("Coincident", 44, 3, -1, 1),
    Sketcher.Constraint("Coincident", 46, 3, -1, 1),
    Sketcher.Constraint("Equal", 1, 5),
    Sketcher.Constraint("Equal", 3, 7),
    Sketcher.Constraint("Equal", 5, 9),
    Sketcher.Constraint("Equal", 7, 11),
    Sketcher.Constraint("Equal", 9, 13),
    Sketcher.Constraint("Equal", 11, 15),
    Sketcher.Constraint("Equal", 13, 17),
    Sketcher.Constraint("Equal", 15, 19),
    Sketcher.Constraint("Equal", 17, 21),
    Sketcher.Constraint("Equal", 19, 23),
    Sketcher.Constraint("Equal", 24, 28),
    Sketcher.Constraint("Equal", 26, 30),
    Sketcher.Constraint("Equal", 28, 32),
    Sketcher.Constraint("Equal", 30, 34),
    Sketcher.Constraint("Equal", 32, 36),
    Sketcher.Constraint("Equal", 34, 38),
    Sketcher.Constraint("Equal", 36, 40),
    Sketcher.Constraint("Equal", 38, 42),
    Sketcher.Constraint("Equal", 40, 44),
    Sketcher.Constraint("Equal", 42, 46),
    Sketcher.Constraint("Parallel", 6, 8),
    Sketcher.Constraint("Parallel", 0, 10),
    Sketcher.Constraint("Parallel", 10, 12),
    Sketcher.Constraint("Parallel", 8, 18),
    Sketcher.Constraint("Parallel", 18, 20),
    Sketcher.Constraint("Parallel", 12, 22),
    Sketcher.Constraint("Parallel", 22, 27),
    Sketcher.Constraint("Parallel", 27, 29),
    Sketcher.Constraint("Parallel", 20, 31),
    Sketcher.Constraint("Parallel", 31, 33),
    Sketcher.Constraint("Parallel", 29, 39),
    Sketcher.Constraint("Parallel", 39, 41),
    Sketcher.Constraint("Parallel", 33, 43),
    Sketcher.Constraint("Parallel", 43, 45),
    Sketcher.Constraint("Equal", 2, 14),
    Sketcher.Constraint("Equal", 4, 16),
    Sketcher.Constraint("Equal", 25, 37),
    Sketcher.Constraint("Equal", 35, 47),
    Sketcher.Constraint("Equal", 0, 8),
    Sketcher.Constraint("Equal", 6, 10),
    Sketcher.Constraint("Equal", 8, 12),
    Sketcher.Constraint("Equal", 10, 18),
    Sketcher.Constraint("Equal", 12, 20),
    Sketcher.Constraint("Equal", 18, 22),
    Sketcher.Constraint("Equal", 27, 31),
    Sketcher.Constraint("Equal", 29, 33),
    Sketcher.Constraint("Equal", 31, 39),
    Sketcher.Constraint("Equal", 33, 41),
    Sketcher.Constraint("Equal", 39, 43),
    Sketcher.Constraint("Equal", 41, 45),
    Sketcher.Constraint("Radius", 24, Q("10 mm")),
    Sketcher.Constraint("Radius", 1, Q("8.3 mm")),
    Sketcher.Constraint("Radius", 3, Q("10.2 mm")),
    Sketcher.Constraint("Radius", 26, Q("8.1 mm")),
    Sketcher.Constraint("Angle", 0, Q("-60 deg")),
    Sketcher.Constraint("Angle", 6, Q("-120 deg")),
    Sketcher.Constraint("DistanceX", 25, 1, 25, 2, Q("1.955859 mm")),
    Sketcher.Constraint("DistanceX", 7, 2, -1, 1, Q("3.2059 mm")),
    Sketcher.Constraint("DistanceX", 28, 1, -1, 1, Q("3.035901 mm")),
    Sketcher.Constraint("DistanceX", 2, 2, 2, 1, Q("1.964345 mm")),
    Sketcher.Constraint("DistanceX", 4, 1, 4, 2, Q("1.949774 mm")),
    Sketcher.Constraint("DistanceX", 35, 1, 35, 2, Q("1.942186 mm")),
    Sketcher.Constraint("DistanceX", 5, 2, -1, 1, Q("6.00445 mm")),
    Sketcher.Constraint("DistanceX", 27, 2, -1, 1, Q("6.527531 mm")),
])
sketch7.setExpression("Constraints[130]", "Params.sketch7_radius")
sketch7.setExpression("Constraints[131]", "Params.sketch7_radius2")
sketch7.setExpression("Constraints[132]", "Params.sketch7_radius3")
sketch7.setExpression("Constraints[133]", "Params.sketch7_radius4")
pocket5 = doc.addObject("PartDesign::Pocket", "Pocket004")
body.addObject(pocket5)
pocket5.Profile = sketch7
pocket5.setExpression("Length", "Params.pocket5_length")

doc.recompute()
